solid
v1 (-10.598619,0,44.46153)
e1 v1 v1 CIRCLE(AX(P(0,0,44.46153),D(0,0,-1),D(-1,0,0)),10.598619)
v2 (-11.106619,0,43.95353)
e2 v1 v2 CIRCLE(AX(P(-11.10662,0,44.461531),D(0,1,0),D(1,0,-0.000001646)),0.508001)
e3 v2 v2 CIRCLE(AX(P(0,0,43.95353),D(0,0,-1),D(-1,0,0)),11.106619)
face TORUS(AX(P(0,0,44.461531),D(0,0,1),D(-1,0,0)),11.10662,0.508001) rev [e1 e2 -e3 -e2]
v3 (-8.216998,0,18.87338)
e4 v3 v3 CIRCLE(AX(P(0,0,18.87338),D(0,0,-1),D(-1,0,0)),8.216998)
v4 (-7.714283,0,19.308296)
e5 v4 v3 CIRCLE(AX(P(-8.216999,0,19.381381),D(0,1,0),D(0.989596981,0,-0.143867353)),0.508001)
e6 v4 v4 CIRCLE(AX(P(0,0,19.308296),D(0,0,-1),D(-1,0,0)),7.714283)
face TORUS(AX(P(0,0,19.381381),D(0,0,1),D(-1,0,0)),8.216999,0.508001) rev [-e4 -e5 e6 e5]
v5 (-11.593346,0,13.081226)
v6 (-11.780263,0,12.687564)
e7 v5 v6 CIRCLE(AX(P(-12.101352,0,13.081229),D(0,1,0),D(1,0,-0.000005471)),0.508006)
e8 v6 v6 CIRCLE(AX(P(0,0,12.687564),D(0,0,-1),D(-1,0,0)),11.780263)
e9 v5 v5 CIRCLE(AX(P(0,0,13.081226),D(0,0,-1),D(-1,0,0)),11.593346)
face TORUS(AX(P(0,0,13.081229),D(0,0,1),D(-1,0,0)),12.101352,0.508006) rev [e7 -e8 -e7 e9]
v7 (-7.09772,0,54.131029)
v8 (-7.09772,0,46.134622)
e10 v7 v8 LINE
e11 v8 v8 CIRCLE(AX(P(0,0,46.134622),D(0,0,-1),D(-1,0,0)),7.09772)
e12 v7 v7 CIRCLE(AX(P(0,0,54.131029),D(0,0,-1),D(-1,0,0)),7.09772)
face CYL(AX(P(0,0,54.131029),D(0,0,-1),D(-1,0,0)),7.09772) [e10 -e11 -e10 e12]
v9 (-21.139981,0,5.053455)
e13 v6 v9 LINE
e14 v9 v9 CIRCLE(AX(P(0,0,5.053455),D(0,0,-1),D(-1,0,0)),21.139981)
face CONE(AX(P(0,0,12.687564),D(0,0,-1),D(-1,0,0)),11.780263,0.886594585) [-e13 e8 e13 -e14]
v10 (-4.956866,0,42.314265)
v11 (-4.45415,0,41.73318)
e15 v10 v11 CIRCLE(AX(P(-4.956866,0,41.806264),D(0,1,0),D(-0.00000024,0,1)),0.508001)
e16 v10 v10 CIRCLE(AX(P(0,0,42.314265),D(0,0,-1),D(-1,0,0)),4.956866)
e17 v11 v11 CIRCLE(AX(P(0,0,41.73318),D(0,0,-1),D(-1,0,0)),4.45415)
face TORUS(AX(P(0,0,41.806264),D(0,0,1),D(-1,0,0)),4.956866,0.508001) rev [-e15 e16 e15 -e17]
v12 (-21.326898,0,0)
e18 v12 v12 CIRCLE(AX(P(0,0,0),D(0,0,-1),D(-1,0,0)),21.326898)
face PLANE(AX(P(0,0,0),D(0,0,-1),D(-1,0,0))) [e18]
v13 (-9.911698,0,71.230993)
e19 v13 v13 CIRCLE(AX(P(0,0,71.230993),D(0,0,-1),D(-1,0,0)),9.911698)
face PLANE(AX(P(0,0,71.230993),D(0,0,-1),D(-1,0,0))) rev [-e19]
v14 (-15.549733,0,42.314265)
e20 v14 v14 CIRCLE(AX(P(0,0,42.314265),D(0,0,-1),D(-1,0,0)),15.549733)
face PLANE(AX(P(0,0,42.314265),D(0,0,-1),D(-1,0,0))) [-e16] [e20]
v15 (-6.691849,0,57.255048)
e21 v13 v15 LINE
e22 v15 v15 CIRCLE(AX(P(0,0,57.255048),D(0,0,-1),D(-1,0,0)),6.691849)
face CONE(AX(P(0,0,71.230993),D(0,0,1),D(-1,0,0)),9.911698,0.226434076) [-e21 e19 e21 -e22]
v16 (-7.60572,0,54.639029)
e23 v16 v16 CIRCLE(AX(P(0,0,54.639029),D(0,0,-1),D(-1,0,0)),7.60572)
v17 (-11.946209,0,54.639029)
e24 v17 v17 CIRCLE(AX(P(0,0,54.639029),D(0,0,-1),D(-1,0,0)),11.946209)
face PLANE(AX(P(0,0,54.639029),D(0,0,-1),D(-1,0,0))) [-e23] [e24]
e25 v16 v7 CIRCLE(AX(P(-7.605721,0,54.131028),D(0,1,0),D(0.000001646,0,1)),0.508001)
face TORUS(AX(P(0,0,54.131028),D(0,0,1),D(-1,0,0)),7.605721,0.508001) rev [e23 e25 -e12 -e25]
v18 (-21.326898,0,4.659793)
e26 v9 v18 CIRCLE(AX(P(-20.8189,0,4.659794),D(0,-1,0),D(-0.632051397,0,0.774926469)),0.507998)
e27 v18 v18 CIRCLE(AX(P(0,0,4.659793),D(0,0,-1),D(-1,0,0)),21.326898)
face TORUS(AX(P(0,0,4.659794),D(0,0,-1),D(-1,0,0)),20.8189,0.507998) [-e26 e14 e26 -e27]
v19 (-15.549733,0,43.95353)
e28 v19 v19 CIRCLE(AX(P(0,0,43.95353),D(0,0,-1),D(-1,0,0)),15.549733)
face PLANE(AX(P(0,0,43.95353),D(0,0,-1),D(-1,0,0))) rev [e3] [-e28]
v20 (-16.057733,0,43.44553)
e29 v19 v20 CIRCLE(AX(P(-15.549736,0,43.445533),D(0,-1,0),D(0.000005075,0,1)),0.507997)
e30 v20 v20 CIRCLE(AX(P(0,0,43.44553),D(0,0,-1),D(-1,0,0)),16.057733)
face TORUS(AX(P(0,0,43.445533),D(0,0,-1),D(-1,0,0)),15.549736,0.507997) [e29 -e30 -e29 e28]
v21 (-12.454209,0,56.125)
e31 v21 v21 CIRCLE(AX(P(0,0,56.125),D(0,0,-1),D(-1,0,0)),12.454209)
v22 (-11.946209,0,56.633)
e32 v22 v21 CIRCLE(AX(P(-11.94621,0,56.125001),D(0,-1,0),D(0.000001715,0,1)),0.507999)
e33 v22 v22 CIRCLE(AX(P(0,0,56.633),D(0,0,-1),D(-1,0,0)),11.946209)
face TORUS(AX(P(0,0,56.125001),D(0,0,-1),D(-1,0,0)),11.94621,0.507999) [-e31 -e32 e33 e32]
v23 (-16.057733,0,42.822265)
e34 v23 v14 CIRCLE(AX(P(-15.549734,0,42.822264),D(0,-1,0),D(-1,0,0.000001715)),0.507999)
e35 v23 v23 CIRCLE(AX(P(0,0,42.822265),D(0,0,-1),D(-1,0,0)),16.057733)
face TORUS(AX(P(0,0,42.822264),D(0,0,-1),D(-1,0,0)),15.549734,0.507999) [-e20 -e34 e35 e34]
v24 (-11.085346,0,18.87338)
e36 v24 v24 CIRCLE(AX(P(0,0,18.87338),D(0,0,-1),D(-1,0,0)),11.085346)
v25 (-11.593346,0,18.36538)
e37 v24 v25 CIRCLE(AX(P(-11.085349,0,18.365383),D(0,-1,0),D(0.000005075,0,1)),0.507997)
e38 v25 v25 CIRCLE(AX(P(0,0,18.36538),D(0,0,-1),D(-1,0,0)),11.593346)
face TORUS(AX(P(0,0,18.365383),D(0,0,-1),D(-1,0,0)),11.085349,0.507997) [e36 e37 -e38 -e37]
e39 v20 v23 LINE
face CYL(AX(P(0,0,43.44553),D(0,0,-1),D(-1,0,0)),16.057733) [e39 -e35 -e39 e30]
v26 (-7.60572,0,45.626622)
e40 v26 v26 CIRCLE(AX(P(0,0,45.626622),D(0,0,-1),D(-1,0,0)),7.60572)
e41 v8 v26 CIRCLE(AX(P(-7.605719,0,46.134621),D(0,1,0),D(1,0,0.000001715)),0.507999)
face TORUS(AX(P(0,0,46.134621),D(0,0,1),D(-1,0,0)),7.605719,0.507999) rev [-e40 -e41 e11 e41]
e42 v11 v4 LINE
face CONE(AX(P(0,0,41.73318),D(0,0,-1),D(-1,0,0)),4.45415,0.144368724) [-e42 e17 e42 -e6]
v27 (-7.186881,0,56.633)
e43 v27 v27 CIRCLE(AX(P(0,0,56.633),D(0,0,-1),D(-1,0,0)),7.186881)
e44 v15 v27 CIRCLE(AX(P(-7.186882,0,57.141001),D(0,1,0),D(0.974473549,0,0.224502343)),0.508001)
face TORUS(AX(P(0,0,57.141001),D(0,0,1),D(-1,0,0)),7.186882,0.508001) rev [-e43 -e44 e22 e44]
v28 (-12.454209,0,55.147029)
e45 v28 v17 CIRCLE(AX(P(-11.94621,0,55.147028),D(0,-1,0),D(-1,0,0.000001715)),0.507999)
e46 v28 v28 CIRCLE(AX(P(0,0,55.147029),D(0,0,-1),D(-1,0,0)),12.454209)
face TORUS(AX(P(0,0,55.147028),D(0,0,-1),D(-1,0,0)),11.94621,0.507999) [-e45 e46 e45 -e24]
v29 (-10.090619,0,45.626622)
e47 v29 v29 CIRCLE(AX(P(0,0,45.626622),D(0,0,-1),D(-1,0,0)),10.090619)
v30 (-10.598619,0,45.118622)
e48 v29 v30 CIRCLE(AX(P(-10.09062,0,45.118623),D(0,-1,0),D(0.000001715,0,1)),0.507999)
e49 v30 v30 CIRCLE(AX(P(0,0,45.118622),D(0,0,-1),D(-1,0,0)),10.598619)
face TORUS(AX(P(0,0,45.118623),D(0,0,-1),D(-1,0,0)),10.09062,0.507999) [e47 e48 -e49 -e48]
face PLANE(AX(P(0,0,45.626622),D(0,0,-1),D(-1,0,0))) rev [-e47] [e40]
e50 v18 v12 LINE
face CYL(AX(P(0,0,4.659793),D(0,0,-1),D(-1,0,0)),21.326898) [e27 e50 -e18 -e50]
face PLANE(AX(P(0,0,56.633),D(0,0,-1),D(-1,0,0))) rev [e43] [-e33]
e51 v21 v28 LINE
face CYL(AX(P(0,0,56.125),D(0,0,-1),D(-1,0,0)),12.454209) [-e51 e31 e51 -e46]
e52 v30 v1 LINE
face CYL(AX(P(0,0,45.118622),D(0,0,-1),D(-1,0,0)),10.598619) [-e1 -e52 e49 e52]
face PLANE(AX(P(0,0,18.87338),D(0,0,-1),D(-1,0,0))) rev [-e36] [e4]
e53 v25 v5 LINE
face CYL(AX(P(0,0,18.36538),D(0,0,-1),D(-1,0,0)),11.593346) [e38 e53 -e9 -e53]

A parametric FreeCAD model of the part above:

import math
import FreeCAD as App
import Part
import Sketcher
from FreeCAD import Vector
Q = App.Units.Quantity

doc = App.newDocument("Part")
body = doc.addObject("PartDesign::Body", "Body")

sketch1 = body.newObject("Sketcher::SketchObject", "Sketch")
sketch1.AttachmentSupport = (doc.getObject("XZ_Plane"), [""])
sketch1.MapMode = "FlatFace"
sketch1.addGeometry([
    Part.LineSegment(Vector(0, 0, 0), Vector(0, 71.23, 0)),
    Part.LineSegment(Vector(0, 71.23, 0), Vector(-9.91, 71.23, 0)),
    Part.LineSegment(Vector(-9.91, 71.23, 0), Vector(-6.69, 57.26, 0)),
    Part.ArcOfCircle(Part.Circle(Vector(-7.19, 57.14, 0), Vector(0, 0, 1), 0.51), math.radians(-90), math.radians(13)),
    Part.LineSegment(Vector(-7.19, 56.63, 0), Vector(-11.95, 56.63, 0)),
    Part.ArcOfCircle(Part.Circle(Vector(-11.95, 56.13, 0), Vector(0, 0, 1), 0.51), math.radians(90), math.radians(180)),
    Part.LineSegment(Vector(-12.45, 56.12, 0), Vector(-12.45, 55.15, 0)),
    Part.ArcOfCircle(Part.Circle(Vector(-11.95, 55.15, 0), Vector(0, 0, 1), 0.51), math.radians(180), math.radians(270)),
    Part.LineSegment(Vector(-11.95, 54.64, 0), Vector(-7.61, 54.64, 0)),
    Part.ArcOfCircle(Part.Circle(Vector(-7.61, 54.13, 0), Vector(0, 0, 1), 0.51), math.radians(0), math.radians(90)),
    Part.LineSegment(Vector(-7.1, 54.13, 0), Vector(-7.1, 46.13, 0)),
    Part.ArcOfCircle(Part.Circle(Vector(-7.61, 46.13, 0), Vector(0, 0, 1), 0.51), math.radians(-90), math.radians(0)),
    Part.LineSegment(Vector(-7.61, 45.63, 0), Vector(-10.09, 45.63, 0)),
    Part.ArcOfCircle(Part.Circle(Vector(-10.09, 45.12, 0), Vector(0, 0, 1), 0.51), math.radians(90), math.radians(180)),
    Part.LineSegment(Vector(-10.6, 45.12, 0), Vector(-10.6, 44.46, 0)),
    Part.ArcOfCircle(Part.Circle(Vector(-11.11, 44.46, 0), Vector(0, 0, 1), 0.51), math.radians(-90), math.radians(0)),
    Part.LineSegment(Vector(-11.11, 43.95, 0), Vector(-15.55, 43.95, 0)),
    Part.ArcOfCircle(Part.Circle(Vector(-15.55, 43.45, 0), Vector(0, 0, 1), 0.51), math.radians(90), math.radians(180)),
    Part.LineSegment(Vector(-16.06, 43.45, 0), Vector(-16.06, 42.82, 0)),
    Part.ArcOfCircle(Part.Circle(Vector(-15.55, 42.82, 0), Vector(0, 0, 1), 0.51), math.radians(180), math.radians(270)),
    Part.LineSegment(Vector(-15.55, 42.31, 0), Vector(-4.96, 42.31, 0)),
    Part.ArcOfCircle(Part.Circle(Vector(-4.96, 41.81, 0), Vector(0, 0, 1), 0.51), math.radians(-8), math.radians(90)),
    Part.LineSegment(Vector(-4.45, 41.73, 0), Vector(-7.71, 19.31, 0)),
    Part.ArcOfCircle(Part.Circle(Vector(-8.22, 19.38, 0), Vector(0, 0, 1), 0.51), math.radians(-90), math.radians(-8)),
    Part.LineSegment(Vector(-8.22, 18.87, 0), Vector(-11.09, 18.87, 0)),
    Part.ArcOfCircle(Part.Circle(Vector(-11.09, 18.37, 0), Vector(0, 0, 1), 0.51), math.radians(90), math.radians(180)),
    Part.LineSegment(Vector(-11.59, 18.37, 0), Vector(-11.59, 13.08, 0)),
    Part.ArcOfCircle(Part.Circle(Vector(-12.1, 13.08, 0), Vector(0, 0, 1), 0.51), math.radians(-51), math.radians(0)),
    Part.LineSegment(Vector(-11.78, 12.69, 0), Vector(-21.14, 5.05, 0)),
    Part.ArcOfCircle(Part.Circle(Vector(-20.82, 4.66, 0), Vector(0, 0, 1), 0.51), math.radians(129), math.radians(180)),
    Part.LineSegment(Vector(-21.33, 4.66, 0), Vector(-21.33, 0, 0)),
    Part.LineSegment(Vector(-21.33, 0, 0), Vector(0, 0, 0)),
], False)
sketch1.addConstraint([
    Sketcher.Constraint("Coincident", 0, 2, 1, 1),
    Sketcher.Constraint("Coincident", 1, 2, 2, 1),
    Sketcher.Constraint("Tangent", 2, 2, 3, 2),
    Sketcher.Constraint("Coincident", 3, 1, 4, 1),
    Sketcher.Constraint("Tangent", 4, 2, 5, 1),
    Sketcher.Constraint("Tangent", 5, 2, 6, 1),
    Sketcher.Constraint("Tangent", 6, 2, 7, 1),
    Sketcher.Constraint("Tangent", 7, 2, 8, 1),
    Sketcher.Constraint("Tangent", 8, 2, 9, 2),
    Sketcher.Constraint("Tangent", 9, 1, 10, 1),
    Sketcher.Constraint("Tangent", 10, 2, 11, 2),
    Sketcher.Constraint("Tangent", 11, 1, 12, 1),
    Sketcher.Constraint("Tangent", 12, 2, 13, 1),
    Sketcher.Constraint("Tangent", 13, 2, 14, 1),
    Sketcher.Constraint("Tangent", 14, 2, 15, 2),
    Sketcher.Constraint("Tangent", 15, 1, 16, 1),
    Sketcher.Constraint("Coincident", 16, 2, 17, 1),
    Sketcher.Constraint("Coincident", 17, 2, 18, 1),
    Sketcher.Constraint("Tangent", 18, 2, 19, 1),
    Sketcher.Constraint("Tangent", 19, 2, 20, 1),
    Sketcher.Constraint("Tangent", 20, 2, 21, 2),
    Sketcher.Constraint("Tangent", 21, 1, 22, 1),
    Sketcher.Constraint("Tangent", 22, 2, 23, 2),
    Sketcher.Constraint("Tangent", 23, 1, 24, 1),
    Sketcher.Constraint("Coincident", 24, 2, 25, 1),
    Sketcher.Constraint("Coincident", 25, 2, 26, 1),
    Sketcher.Constraint("Coincident", 26, 2, 27, 2),
    Sketcher.Constraint("Coincident", 27, 1, 28, 1),
    Sketcher.Constraint("Coincident", 28, 2, 29, 1),
    Sketcher.Constraint("Coincident", 29, 2, 30, 1),
    Sketcher.Constraint("Coincident", 30, 2, 31, 1),
    Sketcher.Constraint("Coincident", 31, 2, 0, 1),
    Sketcher.Constraint("Vertical", 0),
    Sketcher.Constraint("Horizontal", 1),
    Sketcher.Constraint("Horizontal", 4),
    Sketcher.Constraint("Vertical", 6),
    Sketcher.Constraint("Horizontal", 8),
    Sketcher.Constraint("Vertical", 10),
    Sketcher.Constraint("Horizontal", 12),
    Sketcher.Constraint("Vertical", 14),
    Sketcher.Constraint("Horizontal", 16),
    Sketcher.Constraint("Vertical", 18),
    Sketcher.Constraint("Horizontal", 20),
    Sketcher.Constraint("Horizontal", 24),
    Sketcher.Constraint("Vertical", 26),
    Sketcher.Constraint("Vertical", 30),
    Sketcher.Constraint("Horizontal", 31),
    Sketcher.Constraint("Coincident", 31, 2, -1, 1),
    Sketcher.Constraint("Equal", 3, 5),
    Sketcher.Constraint("Equal", 5, 7),
    Sketcher.Constraint("Equal", 7, 9),
    Sketcher.Constraint("Equal", 9, 11),
    Sketcher.Constraint("Equal", 11, 13),
    Sketcher.Constraint("Equal", 13, 15),
    Sketcher.Constraint("Equal", 13, 17),
    Sketcher.Constraint("Equal", 17, 19),
    Sketcher.Constraint("Equal", 19, 21),
    Sketcher.Constraint("Equal", 21, 23),
    Sketcher.Constraint("Equal", 19, 25),
    Sketcher.Constraint("Equal", 25, 29),
    Sketcher.Constraint("Vertical", 19, 3, 16, 2),
    Sketcher.Constraint("Radius", 3, Q("0.02 in")),
    Sketcher.Constraint("DistanceX", 27, 3, 25, 3, Q("0.0400001 in")),
    Sketcher.Constraint("DistanceY", 17, 2, 16, 2, Q("0.02 in")),
    Sketcher.Constraint("DistanceX", 25, 2, 24, 2, Q("0.02 in")),
    Sketcher.Constraint("DistanceY", 25, 2, 24, 2, Q("0.02 in")),
    Sketcher.Constraint("DistanceX", 12, 2, 12, 1, 2.484899),
    Sketcher.Constraint("DistanceX", 31, 1, 31, 2, 21.326898),
    Sketcher.Constraint("DistanceX", 8, 1, 8, 2, 4.340489),
    Sketcher.Constraint("DistanceY", 6, 2, 6, 1, 0.977971),
    Sketcher.Constraint("DistanceY", 14, 2, 14, 1, 0.657092),
    Sketcher.Constraint("DistanceY", -1, 1, 3, 3, 57.141001),
    Sketcher.Constraint("DistanceX", 23, 3, -1, 1, 8.216999),
    Sketcher.Constraint("DistanceY", 29, 3, 22, 2, 14.648502),
    Sketcher.Constraint("DistanceX", 1, 2, 1, 1, 9.911698),
    Sketcher.Constraint("DistanceX", 4, 2, 4, 1, 4.759328),
    Sketcher.Constraint("DistanceX", 16, 2, 16, 1, 4.443114),
    Sketcher.Constraint("DistanceX", 20, 1, 20, 2, 10.592867),
    Sketcher.Constraint("DistanceX", 24, 2, 24, 1, 2.868348),
    Sketcher.Constraint("DistanceY", 0, 1, 0, 2, 71.230993),
    Sketcher.Constraint("DistanceY", 10, 2, 10, 1, 7.996407),
    Sketcher.Constraint("DistanceY", 18, 2, 18, 1, 0.623265),
    Sketcher.Constraint("DistanceY", 26, 2, 26, 1, 5.284154),
    Sketcher.Constraint("DistanceY", 30, 2, 30, 1, 4.659793),
    Sketcher.Constraint("DistanceX", 5, 3, -1, 1, 11.94621),
    Sketcher.Constraint("DistanceY", -1, 1, 23, 3, 19.381381),
    Sketcher.Constraint("DistanceY", -1, 1, 27, 3, 13.081229),
    Sketcher.Constraint("DistanceX", 2, 2, -1, 1, 6.691849),
    Sketcher.Constraint("DistanceX", 28, 2, -1, 1, 21.139981),
    Sketcher.Constraint("DistanceX", 27, 3, 27, 1, 0.321089),
])
revolution = body.newObject("PartDesign::Revolution", "Revolution")
revolution.Profile = sketch1
revolution.ReferenceAxis = (sketch1, ["V_Axis"])
revolution.Angle = 360

doc.recompute()
